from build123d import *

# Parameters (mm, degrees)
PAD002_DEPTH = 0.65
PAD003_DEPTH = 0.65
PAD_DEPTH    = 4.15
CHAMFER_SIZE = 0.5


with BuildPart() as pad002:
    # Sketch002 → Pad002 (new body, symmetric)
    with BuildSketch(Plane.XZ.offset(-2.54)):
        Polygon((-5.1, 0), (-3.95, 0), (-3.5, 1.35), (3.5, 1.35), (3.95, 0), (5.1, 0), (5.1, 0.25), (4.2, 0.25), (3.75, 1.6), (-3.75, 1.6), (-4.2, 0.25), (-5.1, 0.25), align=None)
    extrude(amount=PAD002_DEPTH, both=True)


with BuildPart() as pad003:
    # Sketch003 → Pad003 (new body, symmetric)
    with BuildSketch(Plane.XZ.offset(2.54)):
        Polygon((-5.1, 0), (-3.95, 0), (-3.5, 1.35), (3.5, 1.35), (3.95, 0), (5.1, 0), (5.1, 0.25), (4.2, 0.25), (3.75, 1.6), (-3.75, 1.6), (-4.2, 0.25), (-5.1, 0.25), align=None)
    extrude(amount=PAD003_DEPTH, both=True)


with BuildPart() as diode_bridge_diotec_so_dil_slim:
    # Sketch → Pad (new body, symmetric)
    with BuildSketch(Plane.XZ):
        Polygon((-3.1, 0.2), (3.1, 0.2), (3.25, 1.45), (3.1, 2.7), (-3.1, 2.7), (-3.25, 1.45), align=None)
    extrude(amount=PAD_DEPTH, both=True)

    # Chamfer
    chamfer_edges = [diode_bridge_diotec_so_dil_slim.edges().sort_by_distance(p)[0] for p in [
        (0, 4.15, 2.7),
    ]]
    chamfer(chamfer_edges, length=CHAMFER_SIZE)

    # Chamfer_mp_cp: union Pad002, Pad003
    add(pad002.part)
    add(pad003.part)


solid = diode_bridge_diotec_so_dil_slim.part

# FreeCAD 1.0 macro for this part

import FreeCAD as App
import Part
import Sketcher
from FreeCAD import Vector
Q = App.Units.Quantity


def edges_at(feature, points):
    """Names of the edges that pass closest to the given points."""
    edges = feature.Shape.Edges
    near = lambda p: min(range(len(edges)), key=lambda i: edges[i].distToShape(Part.Vertex(*p))[0])
    return sorted({f"Edge{near(p) + 1}" for p in points})

doc = App.newDocument("Part")
params = doc.addObject("Spreadsheet::Sheet", "Params")
for row, (alias, value) in enumerate([
    ("sketch1_width", "7 mm"),
    ("sketch1_width2", "0.9 mm"),
    ("sketch1_width3", "7.5 mm"),
    ("sketch1_height", "0.25 mm"),
    ("pad1_length", "1.3 mm"),
    ("sketch2_width", "7 mm"),
    ("sketch2_width2", "0.9 mm"),
    ("sketch2_width3", "7.5 mm"),
    ("sketch2_height", "0.25 mm"),
    ("pad2_length", "1.3 mm"),
    ("sketch3_width", "6.2 mm"),
    ("pad3_length", "8.3 mm"),
    ("chamfer_size", "0.5 mm"),
], start=1):
    params.set(f"A{row}", alias)
    params.set(f"B{row}", "=" + value)
    params.setAlias(f"B{row}", alias)

body = doc.addObject("PartDesign::Body", "Body")

# Sketch on XZ plane
sketch1 = doc.addObject("Sketcher::SketchObject", "Sketch")
body.addObject(sketch1)
sketch1.AttachmentSupport = (doc.XZ_Plane, [""])
sketch1.MapMode = "FlatFace"
sketch1.AttachmentOffset = App.Placement(Vector(0, 0, -2.54), App.Rotation())
sketch1.addGeometry(Part.LineSegment(Vector(-5.1, 0, 0), Vector(-3.95, 0, 0)), False)
sketch1.addGeometry(Part.LineSegment(Vector(-3.95, 0, 0), Vector(-3.5, 1.35, 0)), False)
sketch1.addGeometry(Part.LineSegment(Vector(-3.5, 1.35, 0), Vector(3.5, 1.35, 0)), False)
sketch1.addGeometry(Part.LineSegment(Vector(3.5, 1.35, 0), Vector(3.95, 0, 0)), False)
sketch1.addGeometry(Part.LineSegment(Vector(3.95, 0, 0), Vector(5.1, 0, 0)), False)
sketch1.addGeometry(Part.LineSegment(Vector(5.1, 0, 0), Vector(5.1, 0.25, 0)), False)
sketch1.addGeometry(Part.LineSegment(Vector(5.1, 0.25, 0), Vector(4.2, 0.25, 0)), False)
sketch1.addGeometry(Part.LineSegment(Vector(4.2, 0.25, 0), Vector(3.75, 1.6, 0)), False)
sketch1.addGeometry(Part.LineSegment(Vector(3.75, 1.6, 0), Vector(-3.75, 1.6, 0)), False)
sketch1.addGeometry(Part.LineSegment(Vector(-3.75, 1.6, 0), Vector(-4.2, 0.25, 0)), False)
sketch1.addGeometry(Part.LineSegment(Vector(-4.2, 0.25, 0), Vector(-5.1, 0.25, 0)), False)
sketch1.addGeometry(Part.LineSegment(Vector(-5.1, 0.25, 0), Vector(-5.1, 0, 0)), False)
sketch1.addConstraint(Sketcher.Constraint("Coincident", 0, 2, 1, 1))
sketch1.addConstraint(Sketcher.Constraint("Coincident", 1, 2, 2, 1))
sketch1.addConstraint(Sketcher.Constraint("Coincident", 2, 2, 3, 1))
sketch1.addConstraint(Sketcher.Constraint("Coincident", 3, 2, 4, 1))
sketch1.addConstraint(Sketcher.Constraint("Coincident", 4, 2, 5, 1))
sketch1.addConstraint(Sketcher.Constraint("Coincident", 5, 2, 6, 1))
sketch1.addConstraint(Sketcher.Constraint("Coincident", 6, 2, 7, 1))
sketch1.addConstraint(Sketcher.Constraint("Coincident", 7, 2, 8, 1))
sketch1.addConstraint(Sketcher.Constraint("Coincident", 8, 2, 9, 1))
sketch1.addConstraint(Sketcher.Constraint("Coincident", 9, 2, 10, 1))
sketch1.addConstraint(Sketcher.Constraint("Coincident", 10, 2, 11, 1))
sketch1.addConstraint(Sketcher.Constraint("Coincident", 11, 2, 0, 1))
sketch1.addConstraint(Sketcher.Constraint("Horizontal", 0))
sketch1.addConstraint(Sketcher.Constraint("Horizontal", 2))
sketch1.addConstraint(Sketcher.Constraint("Horizontal", 4))
sketch1.addConstraint(Sketcher.Constraint("Vertical", 5))
sketch1.addConstraint(Sketcher.Constraint("Horizontal", 6))
sketch1.addConstraint(Sketcher.Constraint("Horizontal", 8))
sketch1.addConstraint(Sketcher.Constraint("Horizontal", 10))
sketch1.addConstraint(Sketcher.Constraint("Vertical", 11))
sketch1.addConstraint(Sketcher.Constraint("Symmetric", 0, 2, 3, 2, -1, 1))
sketch1.addConstraint(Sketcher.Constraint("Symmetric", 6, 2, 9, 2, -2))
sketch1.addConstraint(Sketcher.Constraint("Symmetric", 4, 2, 11, 2, -2))
sketch1.addConstraint(Sketcher.Constraint("Parallel", 3, 7))
sketch1.addConstraint(Sketcher.Constraint("Parallel", 1, 9))
sketch1.addConstraint(Sketcher.Constraint("Equal", 1, 3))
sketch1.addConstraint(Sketcher.Constraint("Equal", 3, 7))
sketch1.addConstraint(Sketcher.Constraint("DistanceX", 2, 1, 2, 2, Q("7 mm")))
sketch1.addConstraint(Sketcher.Constraint("DistanceX", 6, 2, 6, 1, Q("0.9 mm")))
sketch1.addConstraint(Sketcher.Constraint("DistanceX", 8, 2, 8, 1, Q("7.5 mm")))
sketch1.addConstraint(Sketcher.Constraint("DistanceY", 5, 1, 5, 2, Q("0.25 mm")))
sketch1.addConstraint(Sketcher.Constraint("DistanceX", -1, 1, 4, 2, Q("5.1 mm")))
sketch1.addConstraint(Sketcher.Constraint("DistanceY", -1, 1, 7, 2, Q("1.6 mm")))
sketch1.setExpression("Constraints[27]", "Params.sketch1_width")
sketch1.setExpression("Constraints[28]", "Params.sketch1_width2")
sketch1.setExpression("Constraints[29]", "Params.sketch1_width3")
sketch1.setExpression("Constraints[30]", "Params.sketch1_height")
pad1 = doc.addObject("PartDesign::Pad", "Pad")
body.addObject(pad1)
pad1.Profile = sketch1
pad1.setExpression("Length", "Params.pad1_length")
pad1.Midplane = True
body2 = doc.addObject("PartDesign::Body", "Body001")

# Sketch on XZ plane
sketch2 = doc.addObject("Sketcher::SketchObject", "Sketch001")
body2.addObject(sketch2)
sketch2.AttachmentSupport = (doc.getObject("XZ_Plane001"), [""])
sketch2.MapMode = "FlatFace"
sketch2.AttachmentOffset = App.Placement(Vector(0, 0, 2.54), App.Rotation())
sketch2.addGeometry(Part.LineSegment(Vector(-5.1, 0, 0), Vector(-3.95, 0, 0)), False)
sketch2.addGeometry(Part.LineSegment(Vector(-3.95, 0, 0), Vector(-3.5, 1.35, 0)), False)
sketch2.addGeometry(Part.LineSegment(Vector(-3.5, 1.35, 0), Vector(3.5, 1.35, 0)), False)
sketch2.addGeometry(Part.LineSegment(Vector(3.5, 1.35, 0), Vector(3.95, 0, 0)), False)
sketch2.addGeometry(Part.LineSegment(Vector(3.95, 0, 0), Vector(5.1, 0, 0)), False)
sketch2.addGeometry(Part.LineSegment(Vector(5.1, 0, 0), Vector(5.1, 0.25, 0)), False)
sketch2.addGeometry(Part.LineSegment(Vector(5.1, 0.25, 0), Vector(4.2, 0.25, 0)), False)
sketch2.addGeometry(Part.LineSegment(Vector(4.2, 0.25, 0), Vector(3.75, 1.6, 0)), False)
sketch2.addGeometry(Part.LineSegment(Vector(3.75, 1.6, 0), Vector(-3.75, 1.6, 0)), False)
sketch2.addGeometry(Part.LineSegment(Vector(-3.75, 1.6, 0), Vector(-4.2, 0.25, 0)), False)
sketch2.addGeometry(Part.LineSegment(Vector(-4.2, 0.25, 0), Vector(-5.1, 0.25, 0)), False)
sketch2.addGeometry(Part.LineSegment(Vector(-5.1, 0.25, 0), Vector(-5.1, 0, 0)), False)
sketch2.addConstraint(Sketcher.Constraint("Coincident", 0, 2, 1, 1))
sketch2.addConstraint(Sketcher.Constraint("Coincident", 1, 2, 2, 1))
sketch2.addConstraint(Sketcher.Constraint("Coincident", 2, 2, 3, 1))
sketch2.addConstraint(Sketcher.Constraint("Coincident", 3, 2, 4, 1))
sketch2.addConstraint(Sketcher.Constraint("Coincident", 4, 2, 5, 1))
sketch2.addConstraint(Sketcher.Constraint("Coincident", 5, 2, 6, 1))
sketch2.addConstraint(Sketcher.Constraint("Coincident", 6, 2, 7, 1))
sketch2.addConstraint(Sketcher.Constraint("Coincident", 7, 2, 8, 1))
sketch2.addConstraint(Sketcher.Constraint("Coincident", 8, 2, 9, 1))
sketch2.addConstraint(Sketcher.Constraint("Coincident", 9, 2, 10, 1))
sketch2.addConstraint(Sketcher.Constraint("Coincident", 10, 2, 11, 1))
sketch2.addConstraint(Sketcher.Constraint("Coincident", 11, 2, 0, 1))
sketch2.addConstraint(Sketcher.Constraint("Horizontal", 0))
sketch2.addConstraint(Sketcher.Constraint("Horizontal", 2))
sketch2.addConstraint(Sketcher.Constraint("Horizontal", 4))
sketch2.addConstraint(Sketcher.Constraint("Vertical", 5))
sketch2.addConstraint(Sketcher.Constraint("Horizontal", 6))
sketch2.addConstraint(Sketcher.Constraint("Horizontal", 8))
sketch2.addConstraint(Sketcher.Constraint("Horizontal", 10))
sketch2.addConstraint(Sketcher.Constraint("Vertical", 11))
sketch2.addConstraint(Sketcher.Constraint("Symmetric", 0, 2, 3, 2, -1, 1))
sketch2.addConstraint(Sketcher.Constraint("Symmetric", 6, 2, 9, 2, -2))
sketch2.addConstraint(Sketcher.Constraint("Symmetric", 4, 2, 11, 2, -2))
sketch2.addConstraint(Sketcher.Constraint("Parallel", 3, 7))
sketch2.addConstraint(Sketcher.Constraint("Parallel", 1, 9))
sketch2.addConstraint(Sketcher.Constraint("Equal", 1, 3))
sketch2.addConstraint(Sketcher.Constraint("Equal", 3, 7))
sketch2.addConstraint(Sketcher.Constraint("DistanceX", 2, 1, 2, 2, Q("7 mm")))
sketch2.addConstraint(Sketcher.Constraint("DistanceX", 6, 2, 6, 1, Q("0.9 mm")))
sketch2.addConstraint(Sketcher.Constraint("DistanceX", 8, 2, 8, 1, Q("7.5 mm")))
sketch2.addConstraint(Sketcher.Constraint("DistanceY", 5, 1, 5, 2, Q("0.25 mm")))
sketch2.addConstraint(Sketcher.Constraint("DistanceX", -1, 1, 4, 2, Q("5.1 mm")))
sketch2.addConstraint(Sketcher.Constraint("DistanceY", -1, 1, 7, 2, Q("1.6 mm")))
sketch2.setExpression("Constraints[27]", "Params.sketch2_width")
sketch2.setExpression("Constraints[28]", "Params.sketch2_width2")
sketch2.setExpression("Constraints[29]", "Params.sketch2_width3")
sketch2.setExpression("Constraints[30]", "Params.sketch2_height")
pad2 = doc.addObject("PartDesign::Pad", "Pad001")
body2.addObject(pad2)
pad2.Profile = sketch2
pad2.setExpression("Length", "Params.pad2_length")
pad2.Midplane = True
body3 = doc.addObject("PartDesign::Body", "Body002")

# Sketch on XZ plane
sketch3 = doc.addObject("Sketcher::SketchObject", "Sketch002")
body3.addObject(sketch3)
sketch3.AttachmentSupport = (doc.getObject("XZ_Plane002"), [""])
sketch3.MapMode = "FlatFace"
sketch3.addGeometry(Part.LineSegment(Vector(-3.1, 0.2, 0), Vector(3.1, 0.2, 0)), False)
sketch3.addGeometry(Part.LineSegment(Vector(3.1, 0.2, 0), Vector(3.2, 1.4, 0)), False)
sketch3.addGeometry(Part.LineSegment(Vector(3.2, 1.4, 0), Vector(3.1, 2.7, 0)), False)
sketch3.addGeometry(Part.LineSegment(Vector(3.1, 2.7, 0), Vector(-3.1, 2.7, 0)), False)
sketch3.addGeometry(Part.LineSegment(Vector(-3.1, 2.7, 0), Vector(-3.2, 1.4, 0)), False)
sketch3.addGeometry(Part.LineSegment(Vector(-3.2, 1.4, 0), Vector(-3.1, 0.2, 0)), False)
sketch3.addConstraint(Sketcher.Constraint("Coincident", 0, 2, 1, 1))
sketch3.addConstraint(Sketcher.Constraint("Coincident", 1, 2, 2, 1))
sketch3.addConstraint(Sketcher.Constraint("Coincident", 2, 2, 3, 1))
sketch3.addConstraint(Sketcher.Constraint("Coincident", 3, 2, 4, 1))
sketch3.addConstraint(Sketcher.Constraint("Coincident", 4, 2, 5, 1))
sketch3.addConstraint(Sketcher.Constraint("Coincident", 5, 2, 0, 1))
sketch3.addConstraint(Sketcher.Constraint("Horizontal", 0))
sketch3.addConstraint(Sketcher.Constraint("Horizontal", 3))
sketch3.addConstraint(Sketcher.Constraint("Symmetric", 1, 2, 4, 2, -2))
sketch3.addConstraint(Sketcher.Constraint("Parallel", 1, 4))
sketch3.addConstraint(Sketcher.Constraint("Parallel", 2, 5))
sketch3.addConstraint(Sketcher.Constraint("Vertical", 0, 2, 2, 2))
sketch3.addConstraint(Sketcher.Constraint("Vertical", 3, 2, 5, 2))
sketch3.addConstraint(Sketcher.Constraint("DistanceX", 0, 1, 0, 2, Q("6.2 mm")))
sketch3.addConstraint(Sketcher.Constraint("DistanceY", -1, 1, 0, 2, Q("0.2 mm")))
sketch3.addConstraint(Sketcher.Constraint("DistanceY", -1, 1, 2, 2, Q("2.7 mm")))
sketch3.addConstraint(Sketcher.Constraint("DistanceX", 4, 2, 1, 2, Q("6.5 mm")))
sketch3.setExpression("Constraints[13]", "Params.sketch3_width")
pad3 = doc.addObject("PartDesign::Pad", "Pad002")
body3.addObject(pad3)
pad3.Profile = sketch3
pad3.setExpression("Length", "Params.pad3_length")
pad3.Midplane = True
doc.recompute()

chamfer = doc.addObject("PartDesign::Chamfer", "Chamfer")
body3.addObject(chamfer)
chamfer.Base = (pad3, edges_at(pad3, [(0, 4.15, 2.7)]))
chamfer.setExpression("Size", "Params.chamfer_size")
doc.recompute()

boolean = doc.addObject("PartDesign::Boolean", "Boolean")
body3.addObject(boolean)
boolean.Type = "Fuse"
boolean.addObjects([body])
doc.recompute()

boolean2 = doc.addObject("PartDesign::Boolean", "Boolean001")
body3.addObject(boolean2)
boolean2.Type = "Fuse"
boolean2.addObjects([body2])

doc.recompute()
